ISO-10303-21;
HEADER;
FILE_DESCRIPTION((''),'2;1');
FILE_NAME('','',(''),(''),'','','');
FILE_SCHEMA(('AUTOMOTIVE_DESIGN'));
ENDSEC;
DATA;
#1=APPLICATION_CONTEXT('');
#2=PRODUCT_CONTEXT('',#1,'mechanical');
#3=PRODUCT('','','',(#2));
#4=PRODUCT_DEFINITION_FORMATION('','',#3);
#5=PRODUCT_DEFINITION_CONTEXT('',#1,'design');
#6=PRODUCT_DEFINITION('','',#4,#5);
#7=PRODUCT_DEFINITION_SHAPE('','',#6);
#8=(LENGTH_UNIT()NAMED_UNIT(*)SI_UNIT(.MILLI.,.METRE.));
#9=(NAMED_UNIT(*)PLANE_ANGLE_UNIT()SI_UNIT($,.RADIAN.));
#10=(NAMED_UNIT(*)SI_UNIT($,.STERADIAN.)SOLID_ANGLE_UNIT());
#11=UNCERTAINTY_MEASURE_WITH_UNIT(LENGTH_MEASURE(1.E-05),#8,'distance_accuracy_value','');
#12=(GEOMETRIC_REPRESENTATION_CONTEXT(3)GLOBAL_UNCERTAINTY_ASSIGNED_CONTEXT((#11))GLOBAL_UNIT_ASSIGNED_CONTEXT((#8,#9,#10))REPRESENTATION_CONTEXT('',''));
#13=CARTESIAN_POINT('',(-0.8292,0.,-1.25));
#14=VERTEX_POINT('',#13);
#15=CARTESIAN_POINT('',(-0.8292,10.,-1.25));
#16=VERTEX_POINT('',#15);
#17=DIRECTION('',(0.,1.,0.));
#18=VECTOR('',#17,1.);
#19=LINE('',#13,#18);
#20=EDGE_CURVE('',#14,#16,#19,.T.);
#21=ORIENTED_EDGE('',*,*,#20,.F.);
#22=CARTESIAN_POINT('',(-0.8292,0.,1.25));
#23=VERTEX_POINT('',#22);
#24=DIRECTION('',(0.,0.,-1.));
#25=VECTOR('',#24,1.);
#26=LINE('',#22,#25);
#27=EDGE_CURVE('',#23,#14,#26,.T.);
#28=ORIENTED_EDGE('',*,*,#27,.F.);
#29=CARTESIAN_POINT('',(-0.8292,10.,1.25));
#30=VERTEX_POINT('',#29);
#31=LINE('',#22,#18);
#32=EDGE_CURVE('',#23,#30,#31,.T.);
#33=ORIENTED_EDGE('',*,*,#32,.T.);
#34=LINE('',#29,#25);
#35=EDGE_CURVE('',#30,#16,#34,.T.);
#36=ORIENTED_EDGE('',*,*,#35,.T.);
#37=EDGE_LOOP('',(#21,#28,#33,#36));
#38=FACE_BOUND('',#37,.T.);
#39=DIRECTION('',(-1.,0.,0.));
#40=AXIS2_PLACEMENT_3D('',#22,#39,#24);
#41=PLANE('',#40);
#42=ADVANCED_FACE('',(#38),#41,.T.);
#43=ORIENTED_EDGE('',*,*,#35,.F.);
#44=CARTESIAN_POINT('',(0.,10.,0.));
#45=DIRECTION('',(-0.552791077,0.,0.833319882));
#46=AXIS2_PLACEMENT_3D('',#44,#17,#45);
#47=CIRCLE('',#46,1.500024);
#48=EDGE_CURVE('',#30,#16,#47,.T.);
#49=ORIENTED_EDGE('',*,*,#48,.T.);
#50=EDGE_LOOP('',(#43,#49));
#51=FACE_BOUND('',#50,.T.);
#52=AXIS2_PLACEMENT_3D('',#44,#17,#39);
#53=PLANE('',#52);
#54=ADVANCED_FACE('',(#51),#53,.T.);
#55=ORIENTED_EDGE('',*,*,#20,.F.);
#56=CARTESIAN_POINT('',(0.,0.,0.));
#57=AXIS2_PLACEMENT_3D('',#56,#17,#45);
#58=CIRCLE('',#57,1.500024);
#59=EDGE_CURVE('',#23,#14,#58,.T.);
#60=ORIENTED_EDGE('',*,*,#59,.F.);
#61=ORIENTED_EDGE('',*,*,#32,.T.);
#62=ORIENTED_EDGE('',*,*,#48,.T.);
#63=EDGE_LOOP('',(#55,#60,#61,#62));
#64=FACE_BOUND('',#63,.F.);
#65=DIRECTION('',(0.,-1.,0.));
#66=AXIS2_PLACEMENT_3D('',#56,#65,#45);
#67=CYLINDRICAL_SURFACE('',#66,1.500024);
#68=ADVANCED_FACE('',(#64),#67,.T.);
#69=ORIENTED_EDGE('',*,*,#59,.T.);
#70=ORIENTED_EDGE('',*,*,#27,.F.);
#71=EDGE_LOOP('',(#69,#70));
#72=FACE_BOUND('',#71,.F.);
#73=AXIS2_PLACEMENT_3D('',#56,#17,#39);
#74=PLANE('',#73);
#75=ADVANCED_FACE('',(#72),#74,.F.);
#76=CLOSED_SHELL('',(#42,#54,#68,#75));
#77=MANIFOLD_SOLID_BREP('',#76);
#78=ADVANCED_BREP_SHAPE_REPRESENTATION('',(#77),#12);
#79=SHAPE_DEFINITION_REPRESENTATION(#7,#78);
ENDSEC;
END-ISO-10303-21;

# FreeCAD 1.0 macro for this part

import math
import FreeCAD as App
import Part
import Sketcher

V = App.Vector
Q = App.Units.Quantity

doc = App.newDocument("Part")
body = doc.addObject("PartDesign::Body", "Body")

sketch1 = doc.addObject("Sketcher::SketchObject", "Sketch")
body.addObject(sketch1)
sketch1.AttachmentSupport = (doc.XZ_Plane, [""])
sketch1.MapMode = "FlatFace"
sketch1.addGeometry([
    Part.LineSegment(V(-0.8, -1.2, 0), V(-0.8, 1.2, 0)),
    Part.ArcOfCircle(Part.Circle(V(0, 0, 0), V(0, 0, 1), 1.5), math.radians(-124), math.radians(124)),
], False)
sketch1.addConstraint([
    Sketcher.Constraint("Coincident", 0, 1, 1, 1),
    Sketcher.Constraint("Coincident", 1, 2, 0, 2),
    Sketcher.Constraint("Vertical", 0),
    Sketcher.Constraint("Coincident", 1, 3, -1, 1),
    Sketcher.Constraint("Radius", 1, Q("1.5 mm")),
    Sketcher.Constraint("DistanceY", 0, 1, 0, 2, Q("2.5 mm")),
])
pad1 = doc.addObject("PartDesign::Pad", "Pad")
body.addObject(pad1)
pad1.Profile = sketch1
pad1.Length = 10
pad1.Reversed = True

doc.recompute()
